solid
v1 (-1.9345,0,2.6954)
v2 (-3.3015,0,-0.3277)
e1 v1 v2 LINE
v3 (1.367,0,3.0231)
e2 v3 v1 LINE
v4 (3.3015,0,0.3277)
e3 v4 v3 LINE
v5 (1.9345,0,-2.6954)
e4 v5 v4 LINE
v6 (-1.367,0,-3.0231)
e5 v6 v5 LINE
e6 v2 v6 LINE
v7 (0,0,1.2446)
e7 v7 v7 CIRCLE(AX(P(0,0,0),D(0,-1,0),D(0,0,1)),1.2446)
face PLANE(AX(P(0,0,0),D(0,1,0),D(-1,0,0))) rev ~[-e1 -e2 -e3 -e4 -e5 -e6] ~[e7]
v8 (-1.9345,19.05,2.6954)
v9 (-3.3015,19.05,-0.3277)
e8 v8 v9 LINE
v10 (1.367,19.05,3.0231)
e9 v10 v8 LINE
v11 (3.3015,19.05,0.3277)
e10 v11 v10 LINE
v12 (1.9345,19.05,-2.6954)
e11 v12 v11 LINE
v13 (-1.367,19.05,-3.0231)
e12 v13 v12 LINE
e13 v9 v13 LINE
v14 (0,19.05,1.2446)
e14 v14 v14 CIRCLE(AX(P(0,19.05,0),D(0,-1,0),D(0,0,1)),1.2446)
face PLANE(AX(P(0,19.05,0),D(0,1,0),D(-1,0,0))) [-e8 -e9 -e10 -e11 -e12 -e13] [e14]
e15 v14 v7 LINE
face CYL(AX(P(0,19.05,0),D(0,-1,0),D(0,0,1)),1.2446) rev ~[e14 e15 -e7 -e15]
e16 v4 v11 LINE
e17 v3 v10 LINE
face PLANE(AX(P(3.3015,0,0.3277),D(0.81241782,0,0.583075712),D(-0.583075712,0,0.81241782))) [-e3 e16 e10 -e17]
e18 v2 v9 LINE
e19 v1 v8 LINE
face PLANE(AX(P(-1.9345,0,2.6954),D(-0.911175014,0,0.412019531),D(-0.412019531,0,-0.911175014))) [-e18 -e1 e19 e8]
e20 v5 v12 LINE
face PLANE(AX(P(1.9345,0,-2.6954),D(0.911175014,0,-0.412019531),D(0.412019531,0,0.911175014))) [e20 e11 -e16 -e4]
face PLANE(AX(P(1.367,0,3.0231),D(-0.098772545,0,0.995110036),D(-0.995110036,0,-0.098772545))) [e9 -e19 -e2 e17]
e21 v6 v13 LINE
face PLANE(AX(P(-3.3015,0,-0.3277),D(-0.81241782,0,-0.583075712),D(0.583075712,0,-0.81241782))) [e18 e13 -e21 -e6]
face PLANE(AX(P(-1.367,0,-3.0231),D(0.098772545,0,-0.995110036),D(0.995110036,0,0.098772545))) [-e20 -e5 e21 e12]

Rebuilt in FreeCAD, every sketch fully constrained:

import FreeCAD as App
import Part
import Sketcher
from FreeCAD import Vector
Q = App.Units.Quantity


def add_polygon(sketch, points):
    """Adds a closed chain of lines whose ends are joined by coincident constraints."""
    first, n = sketch.GeometryCount, len(points)
    for a, b in zip(points, points[1:] + points[:1]):
        sketch.addGeometry(Part.LineSegment(App.Vector(*a, 0), App.Vector(*b, 0)), False)
    for i in range(n):
        sketch.addConstraint(Sketcher.Constraint("Coincident", first + i, 2, first + (i + 1) % n, 1))

doc = App.newDocument("Part")
body = doc.addObject("PartDesign::Body", "Body")

# Sketch on XZ plane
sketch1 = doc.addObject("Sketcher::SketchObject", "Sketch")
body.addObject(sketch1)
sketch1.AttachmentSupport = (doc.XZ_Plane, [""])
sketch1.MapMode = "FlatFace"
add_polygon(sketch1, [(-3.3015, -0.3277), (-1.9345, 2.6954), (1.367, 3.0231), (3.3015, 0.3277), (1.9345, -2.6954), (-1.367, -3.0231)])  # lines 0-5
sketch1.addConstraint(Sketcher.Constraint("Symmetric", 0, 2, 3, 2, -1, 1))
sketch1.addConstraint(Sketcher.Constraint("Symmetric", 1, 2, 4, 2, -1, 1))
sketch1.addConstraint(Sketcher.Constraint("Symmetric", 2, 2, 5, 2, -1, 1))
sketch1.addConstraint(Sketcher.Constraint("Equal", 0, 1))
sketch1.addConstraint(Sketcher.Constraint("Equal", 1, 2))
sketch1.addConstraint(Sketcher.Constraint("DistanceY", -1, 1, 2, 2, Q("0.0129 in")))
sketch1.addConstraint(Sketcher.Constraint("DistanceY", 0, 2, 1, 2, Q("0.0129 in")))
sketch1.addConstraint(Sketcher.Constraint("DistanceX", 4, 2, 2, 2, Q("0.1838 in")))
sketch1.addConstraint(Sketcher.Constraint("Distance", 0, Q("3.3178 mm")))
pad1 = doc.addObject("PartDesign::Pad", "Pad")
body.addObject(pad1)
pad1.Profile = sketch1
pad1.Length = Q("0.75 in")
pad1.Reversed = True

# Sketch on XZ plane
sketch2 = doc.addObject("Sketcher::SketchObject", "Sketch001")
body.addObject(sketch2)
sketch2.AttachmentSupport = (doc.XZ_Plane, [""])
sketch2.MapMode = "FlatFace"
sketch2.AttachmentOffset = App.Placement(Vector(0, 0, -0.75 * 25.4), App.Rotation())
sketch2.addGeometry(Part.Circle(Vector(0, 0, 0), Vector(0, 0, 1), 1.2446), False)
sketch2.addConstraint(Sketcher.Constraint("Coincident", 0, 3, -1, 1))
sketch2.addConstraint(Sketcher.Constraint("Diameter", 0, Q("0.098 in")))
doc.recompute()
hole = doc.addObject("PartDesign::Hole", "Hole")
body.addObject(hole)
hole.Profile = sketch2
hole.ThreadType = "None"
hole.Diameter = Q("0.098 in")
hole.DepthType = "ThroughAll"
hole.Reversed = True

doc.recompute()
